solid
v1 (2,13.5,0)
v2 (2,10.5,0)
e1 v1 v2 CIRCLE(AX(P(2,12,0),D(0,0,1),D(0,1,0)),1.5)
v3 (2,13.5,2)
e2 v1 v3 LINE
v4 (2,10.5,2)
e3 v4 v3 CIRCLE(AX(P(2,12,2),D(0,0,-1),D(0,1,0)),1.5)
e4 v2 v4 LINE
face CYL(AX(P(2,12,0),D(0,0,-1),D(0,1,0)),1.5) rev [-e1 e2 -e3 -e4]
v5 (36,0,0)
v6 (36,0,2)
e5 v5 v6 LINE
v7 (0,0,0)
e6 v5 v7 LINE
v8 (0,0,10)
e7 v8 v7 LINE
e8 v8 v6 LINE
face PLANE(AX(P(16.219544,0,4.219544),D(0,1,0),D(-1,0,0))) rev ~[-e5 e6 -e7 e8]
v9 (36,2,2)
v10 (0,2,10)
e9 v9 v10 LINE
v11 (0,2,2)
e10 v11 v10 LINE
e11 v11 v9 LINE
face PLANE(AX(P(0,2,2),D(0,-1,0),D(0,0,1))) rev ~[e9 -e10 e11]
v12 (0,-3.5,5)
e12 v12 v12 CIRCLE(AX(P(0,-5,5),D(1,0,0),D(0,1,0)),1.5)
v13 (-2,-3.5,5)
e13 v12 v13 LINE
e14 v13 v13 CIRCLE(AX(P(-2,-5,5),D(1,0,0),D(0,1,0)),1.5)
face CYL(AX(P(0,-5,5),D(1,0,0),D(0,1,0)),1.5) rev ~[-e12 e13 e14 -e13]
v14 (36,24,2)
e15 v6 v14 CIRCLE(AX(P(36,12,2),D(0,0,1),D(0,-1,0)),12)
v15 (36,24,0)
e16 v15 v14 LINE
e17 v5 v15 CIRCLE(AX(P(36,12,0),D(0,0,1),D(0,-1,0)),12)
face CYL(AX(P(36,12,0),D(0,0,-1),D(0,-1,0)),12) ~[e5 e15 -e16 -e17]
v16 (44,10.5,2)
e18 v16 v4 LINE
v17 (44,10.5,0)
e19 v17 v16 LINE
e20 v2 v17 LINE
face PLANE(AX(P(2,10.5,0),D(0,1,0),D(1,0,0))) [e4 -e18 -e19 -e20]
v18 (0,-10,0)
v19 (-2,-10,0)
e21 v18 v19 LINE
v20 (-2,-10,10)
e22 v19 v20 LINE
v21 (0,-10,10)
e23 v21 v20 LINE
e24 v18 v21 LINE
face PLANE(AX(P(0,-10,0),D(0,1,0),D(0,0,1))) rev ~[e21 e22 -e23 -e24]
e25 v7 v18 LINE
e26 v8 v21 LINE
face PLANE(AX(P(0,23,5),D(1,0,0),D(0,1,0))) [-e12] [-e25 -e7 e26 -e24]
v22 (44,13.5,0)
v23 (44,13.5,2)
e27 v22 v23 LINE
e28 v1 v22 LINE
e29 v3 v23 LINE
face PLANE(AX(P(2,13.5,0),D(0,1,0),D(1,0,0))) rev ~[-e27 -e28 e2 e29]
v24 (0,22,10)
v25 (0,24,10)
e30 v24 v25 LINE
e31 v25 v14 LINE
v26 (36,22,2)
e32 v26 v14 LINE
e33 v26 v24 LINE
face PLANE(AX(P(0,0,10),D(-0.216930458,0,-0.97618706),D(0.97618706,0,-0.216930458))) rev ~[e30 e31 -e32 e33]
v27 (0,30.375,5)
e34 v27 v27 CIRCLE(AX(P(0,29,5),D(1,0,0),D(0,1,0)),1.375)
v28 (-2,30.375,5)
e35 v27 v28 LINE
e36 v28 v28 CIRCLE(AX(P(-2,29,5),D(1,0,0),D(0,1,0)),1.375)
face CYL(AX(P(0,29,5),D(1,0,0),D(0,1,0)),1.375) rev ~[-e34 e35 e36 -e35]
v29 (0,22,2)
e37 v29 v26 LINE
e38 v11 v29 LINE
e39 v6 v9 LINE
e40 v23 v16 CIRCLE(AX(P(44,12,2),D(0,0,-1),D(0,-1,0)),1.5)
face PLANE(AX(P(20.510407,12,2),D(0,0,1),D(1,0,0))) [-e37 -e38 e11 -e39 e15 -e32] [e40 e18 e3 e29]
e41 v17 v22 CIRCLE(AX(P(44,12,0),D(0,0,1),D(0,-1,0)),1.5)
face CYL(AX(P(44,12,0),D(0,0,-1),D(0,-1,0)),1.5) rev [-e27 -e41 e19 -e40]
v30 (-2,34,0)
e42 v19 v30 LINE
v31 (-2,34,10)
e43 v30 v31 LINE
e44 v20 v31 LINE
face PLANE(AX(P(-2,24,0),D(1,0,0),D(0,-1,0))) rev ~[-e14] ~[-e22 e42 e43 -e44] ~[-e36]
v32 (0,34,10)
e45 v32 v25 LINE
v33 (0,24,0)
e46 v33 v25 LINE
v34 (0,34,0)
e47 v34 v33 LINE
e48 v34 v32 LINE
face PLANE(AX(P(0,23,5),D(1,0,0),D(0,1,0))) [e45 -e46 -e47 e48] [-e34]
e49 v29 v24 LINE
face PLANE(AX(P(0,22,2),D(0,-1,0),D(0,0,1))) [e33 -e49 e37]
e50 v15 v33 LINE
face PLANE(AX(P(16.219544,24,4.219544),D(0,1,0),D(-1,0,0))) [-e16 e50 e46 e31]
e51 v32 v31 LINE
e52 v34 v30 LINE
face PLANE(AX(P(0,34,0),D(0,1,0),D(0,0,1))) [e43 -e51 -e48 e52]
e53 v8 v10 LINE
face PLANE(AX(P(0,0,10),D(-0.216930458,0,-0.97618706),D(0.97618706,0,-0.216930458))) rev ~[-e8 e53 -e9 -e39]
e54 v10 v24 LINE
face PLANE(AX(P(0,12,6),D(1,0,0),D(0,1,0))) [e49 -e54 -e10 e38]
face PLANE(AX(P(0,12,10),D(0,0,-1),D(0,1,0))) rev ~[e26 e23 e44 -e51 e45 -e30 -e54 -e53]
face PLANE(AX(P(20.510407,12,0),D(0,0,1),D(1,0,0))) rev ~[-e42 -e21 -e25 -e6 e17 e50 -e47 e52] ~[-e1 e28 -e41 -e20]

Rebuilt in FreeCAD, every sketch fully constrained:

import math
import FreeCAD as App
import Part
import Sketcher
from FreeCAD import Vector

doc = App.newDocument("Part")
params = doc.addObject("Spreadsheet::Sheet", "Params")
for row, (alias, value) in enumerate([
    ("sketch1_width", "22 mm"),
    ("sketch1_height", "10 mm"),
    ("pad1_length", "2 mm"),
    ("sketch2_diameter", "3 mm"),
    ("sketch3_width", "22 mm"),
    ("sketch3_height", "10 mm"),
    ("pad2_length", "2 mm"),
    ("sketch4_diameter", "2.75 mm"),
    ("sketch5_radius", "12 mm"),
    ("sketch5_width", "38 mm"),
    ("pad3_length", "2 mm"),
    ("sketch6_radius", "1.5 mm"),
    ("sketch6_width", "42 mm"),
    ("sketch7_width", "36 mm"),
    ("sketch7_height", "8 mm"),
    ("pad4_length", "24 mm"),
    ("sketch8_width", "20 mm"),
    ("sketch8_height", "8 mm"),
], start=1):
    params.set(f"A{row}", alias)
    params.set(f"B{row}", "=" + value)
    params.setAlias(f"B{row}", alias)

body = doc.addObject("PartDesign::Body", "Body")

# Sketch on YZ plane
sketch1 = body.newObject("Sketcher::SketchObject", "Sketch")
sketch1.AttachmentSupport = (doc.getObject("YZ_Plane"), [""])
sketch1.MapMode = "FlatFace"
sketch1.addGeometry(Part.LineSegment(Vector(-10, 10, 0), Vector(-10, 0, 0)), False)
sketch1.addGeometry(Part.LineSegment(Vector(-10, 0, 0), Vector(12, 0, 0)), False)
sketch1.addGeometry(Part.LineSegment(Vector(12, 0, 0), Vector(12, 10, 0)), False)
sketch1.addGeometry(Part.LineSegment(Vector(12, 10, 0), Vector(-10, 10, 0)), False)
sketch1.addConstraint(Sketcher.Constraint("Coincident", 0, 2, 1, 1))
sketch1.addConstraint(Sketcher.Constraint("Coincident", 1, 2, 2, 1))
sketch1.addConstraint(Sketcher.Constraint("Coincident", 2, 2, 3, 1))
sketch1.addConstraint(Sketcher.Constraint("Coincident", 3, 2, 0, 1))
sketch1.addConstraint(Sketcher.Constraint("Vertical", 0))
sketch1.addConstraint(Sketcher.Constraint("Horizontal", 1))
sketch1.addConstraint(Sketcher.Constraint("Vertical", 2))
sketch1.addConstraint(Sketcher.Constraint("Horizontal", 3))
sketch1.addConstraint(Sketcher.Constraint("PointOnObject", 0, 2, -1))
sketch1.addConstraint(Sketcher.Constraint("DistanceX", 1, 1, 1, 2, 22.0))
sketch1.addConstraint(Sketcher.Constraint("DistanceY", 0, 2, 0, 1, 10.0))
sketch1.addConstraint(Sketcher.Constraint("DistanceX", 0, 2, -1, 1, 10.0))
sketch1.setExpression("Constraints[9]", "Params.sketch1_width")
sketch1.setExpression("Constraints[10]", "Params.sketch1_height")
pad1 = body.newObject("PartDesign::Pad", "Pad")
pad1.Profile = sketch1
pad1.setExpression("Length", "Params.pad1_length")
pad1.Reversed = True

# Sketch on YZ plane
sketch2 = body.newObject("Sketcher::SketchObject", "Sketch001")
sketch2.AttachmentSupport = (doc.getObject("YZ_Plane"), [""])
sketch2.MapMode = "FlatFace"
sketch2.addGeometry(Part.Circle(Vector(-5, 5, 0), Vector(0, 0, 1), 1.5), False)
sketch2.addConstraint(Sketcher.Constraint("Diameter", 0, 3.0))
sketch2.addConstraint(Sketcher.Constraint("DistanceX", 0, 3, -1, 1, 5.0))
sketch2.addConstraint(Sketcher.Constraint("DistanceY", -1, 1, 0, 3, 5.0))
sketch2.setExpression("Constraints[0]", "Params.sketch2_diameter")
pocket1 = body.newObject("PartDesign::Pocket", "Pocket")
pocket1.Profile = sketch2
pocket1.Type = "ThroughAll"
pocket1.Midplane = True

# Sketch on YZ plane
sketch3 = body.newObject("Sketcher::SketchObject", "Sketch002")
sketch3.AttachmentSupport = (doc.getObject("YZ_Plane"), [""])
sketch3.MapMode = "FlatFace"
sketch3.addGeometry(Part.LineSegment(Vector(12, 10, 0), Vector(12, 0, 0)), False)
sketch3.addGeometry(Part.LineSegment(Vector(12, 0, 0), Vector(34, 0, 0)), False)
sketch3.addGeometry(Part.LineSegment(Vector(34, 0, 0), Vector(34, 10, 0)), False)
sketch3.addGeometry(Part.LineSegment(Vector(34, 10, 0), Vector(12, 10, 0)), False)
sketch3.addConstraint(Sketcher.Constraint("Coincident", 0, 2, 1, 1))
sketch3.addConstraint(Sketcher.Constraint("Coincident", 1, 2, 2, 1))
sketch3.addConstraint(Sketcher.Constraint("Coincident", 2, 2, 3, 1))
sketch3.addConstraint(Sketcher.Constraint("Coincident", 3, 2, 0, 1))
sketch3.addConstraint(Sketcher.Constraint("Vertical", 0))
sketch3.addConstraint(Sketcher.Constraint("Horizontal", 1))
sketch3.addConstraint(Sketcher.Constraint("Vertical", 2))
sketch3.addConstraint(Sketcher.Constraint("Horizontal", 3))
sketch3.addConstraint(Sketcher.Constraint("PointOnObject", 0, 2, -1))
sketch3.addConstraint(Sketcher.Constraint("DistanceX", 1, 1, 1, 2, 22.0))
sketch3.addConstraint(Sketcher.Constraint("DistanceY", 0, 2, 0, 1, 10.0))
sketch3.addConstraint(Sketcher.Constraint("DistanceX", -1, 1, 0, 2, 12.0))
sketch3.setExpression("Constraints[9]", "Params.sketch3_width")
sketch3.setExpression("Constraints[10]", "Params.sketch3_height")
pad2 = body.newObject("PartDesign::Pad", "Pad001")
pad2.Profile = sketch3
pad2.setExpression("Length", "Params.pad2_length")
pad2.Reversed = True

# Sketch on YZ plane
sketch4 = body.newObject("Sketcher::SketchObject", "Sketch003")
sketch4.AttachmentSupport = (doc.getObject("YZ_Plane"), [""])
sketch4.MapMode = "FlatFace"
sketch4.addGeometry(Part.Circle(Vector(29, 5, 0), Vector(0, 0, 1), 1.4), False)
sketch4.addConstraint(Sketcher.Constraint("Diameter", 0, 2.75))
sketch4.addConstraint(Sketcher.Constraint("DistanceX", -1, 1, 0, 3, 29.0))
sketch4.addConstraint(Sketcher.Constraint("DistanceY", -1, 1, 0, 3, 5.0))
sketch4.setExpression("Constraints[0]", "Params.sketch4_diameter")
pocket2 = body.newObject("PartDesign::Pocket", "Pocket001")
pocket2.Profile = sketch4
pocket2.Type = "ThroughAll"

# Sketch on XY plane
sketch5 = body.newObject("Sketcher::SketchObject", "Sketch004")
sketch5.AttachmentSupport = (doc.getObject("XY_Plane"), [""])
sketch5.MapMode = "FlatFace"
sketch5.addGeometry(Part.ArcOfCircle(Part.Circle(Vector(36, 12, 0), Vector(0, 0, 1), 12), math.radians(-90), math.radians(90)), False)
sketch5.addGeometry(Part.LineSegment(Vector(36, 24, 0), Vector(-2, 24, 0)), False)
sketch5.addGeometry(Part.LineSegment(Vector(-2, 24, 0), Vector(-2, 0, 0)), False)
sketch5.addGeometry(Part.LineSegment(Vector(-2, 0, 0), Vector(36, 0, 0)), False)
sketch5.addConstraint(Sketcher.Constraint("Tangent", 0, 2, 1, 1))
sketch5.addConstraint(Sketcher.Constraint("Coincident", 1, 2, 2, 1))
sketch5.addConstraint(Sketcher.Constraint("Coincident", 2, 2, 3, 1))
sketch5.addConstraint(Sketcher.Constraint("Tangent", 3, 2, 0, 1))
sketch5.addConstraint(Sketcher.Constraint("Horizontal", 1))
sketch5.addConstraint(Sketcher.Constraint("Vertical", 2))
sketch5.addConstraint(Sketcher.Constraint("Horizontal", 3))
sketch5.addConstraint(Sketcher.Constraint("PointOnObject", 2, 2, -1))
sketch5.addConstraint(Sketcher.Constraint("Radius", 0, 12.0))
sketch5.addConstraint(Sketcher.Constraint("DistanceX", 1, 2, 1, 1, 38.0))
sketch5.addConstraint(Sketcher.Constraint("DistanceX", -1, 1, 0, 3, 36.0))
sketch5.setExpression("Constraints[8]", "Params.sketch5_radius")
sketch5.setExpression("Constraints[9]", "Params.sketch5_width")
pad3 = body.newObject("PartDesign::Pad", "Pad002")
pad3.Profile = sketch5
pad3.setExpression("Length", "Params.pad3_length")

# Sketch on XY plane
sketch6 = body.newObject("Sketcher::SketchObject", "Sketch005")
sketch6.AttachmentSupport = (doc.getObject("XY_Plane"), [""])
sketch6.MapMode = "FlatFace"
sketch6.addGeometry(Part.ArcOfCircle(Part.Circle(Vector(2, 12, 0), Vector(0, 0, 1), 1.5), math.radians(90), math.radians(270)), False)
sketch6.addGeometry(Part.LineSegment(Vector(2, 10.5, 0), Vector(44, 10.5, 0)), False)
sketch6.addGeometry(Part.ArcOfCircle(Part.Circle(Vector(44, 12, 0), Vector(0, 0, 1), 1.5), math.radians(-90), math.radians(90)), False)
sketch6.addGeometry(Part.LineSegment(Vector(44, 13.5, 0), Vector(2, 13.5, 0)), False)
sketch6.addConstraint(Sketcher.Constraint("Tangent", 0, 2, 1, 1))
sketch6.addConstraint(Sketcher.Constraint("Tangent", 1, 2, 2, 1))
sketch6.addConstraint(Sketcher.Constraint("Tangent", 2, 2, 3, 1))
sketch6.addConstraint(Sketcher.Constraint("Tangent", 3, 2, 0, 1))
sketch6.addConstraint(Sketcher.Constraint("Horizontal", 1))
sketch6.addConstraint(Sketcher.Constraint("Horizontal", 3))
sketch6.addConstraint(Sketcher.Constraint("Radius", 0, 1.5))
sketch6.addConstraint(Sketcher.Constraint("DistanceX", 1, 1, 1, 2, 42.0))
sketch6.addConstraint(Sketcher.Constraint("DistanceX", -1, 1, 0, 3, 2.0))
sketch6.addConstraint(Sketcher.Constraint("DistanceY", -1, 1, 0, 3, 12.0))
sketch6.setExpression("Constraints[6]", "Params.sketch6_radius")
sketch6.setExpression("Constraints[7]", "Params.sketch6_width")
pocket3 = body.newObject("PartDesign::Pocket", "Pocket002")
pocket3.Profile = sketch6
pocket3.Type = "ThroughAll"
pocket3.Reversed = True

# Sketch on XZ plane
sketch7 = body.newObject("Sketcher::SketchObject", "Sketch006")
sketch7.AttachmentSupport = (doc.getObject("XZ_Plane"), [""])
sketch7.MapMode = "FlatFace"
sketch7.addGeometry(Part.LineSegment(Vector(36, 2, 0), Vector(0, 10, 0)), False)
sketch7.addGeometry(Part.LineSegment(Vector(0, 10, 0), Vector(0, 2, 0)), False)
sketch7.addGeometry(Part.LineSegment(Vector(0, 2, 0), Vector(36, 2, 0)), False)
sketch7.addConstraint(Sketcher.Constraint("Coincident", 0, 2, 1, 1))
sketch7.addConstraint(Sketcher.Constraint("Coincident", 1, 2, 2, 1))
sketch7.addConstraint(Sketcher.Constraint("Coincident", 2, 2, 0, 1))
sketch7.addConstraint(Sketcher.Constraint("Vertical", 1))
sketch7.addConstraint(Sketcher.Constraint("Horizontal", 2))
sketch7.addConstraint(Sketcher.Constraint("PointOnObject", 0, 2, -2))
sketch7.addConstraint(Sketcher.Constraint("DistanceX", 2, 1, 2, 2, 36.0))
sketch7.addConstraint(Sketcher.Constraint("DistanceY", 1, 2, 1, 1, 8.0))
sketch7.addConstraint(Sketcher.Constraint("DistanceY", -1, 1, 0, 2, 10.0))
sketch7.setExpression("Constraints[6]", "Params.sketch7_width")
sketch7.setExpression("Constraints[7]", "Params.sketch7_height")
pad4 = body.newObject("PartDesign::Pad", "Pad003")
pad4.Profile = sketch7
pad4.setExpression("Length", "Params.pad4_length")
pad4.Reversed = True

# Sketch on YZ plane
sketch8 = body.newObject("Sketcher::SketchObject", "Sketch007")
sketch8.AttachmentSupport = (doc.getObject("YZ_Plane"), [""])
sketch8.MapMode = "FlatFace"
sketch8.addGeometry(Part.LineSegment(Vector(2, 10, 0), Vector(2, 2, 0)), False)
sketch8.addGeometry(Part.LineSegment(Vector(2, 2, 0), Vector(22, 2, 0)), False)
sketch8.addGeometry(Part.LineSegment(Vector(22, 2, 0), Vector(22, 10, 0)), False)
sketch8.addGeometry(Part.LineSegment(Vector(22, 10, 0), Vector(2, 10, 0)), False)
sketch8.addConstraint(Sketcher.Constraint("Coincident", 0, 2, 1, 1))
sketch8.addConstraint(Sketcher.Constraint("Coincident", 1, 2, 2, 1))
sketch8.addConstraint(Sketcher.Constraint("Coincident", 2, 2, 3, 1))
sketch8.addConstraint(Sketcher.Constraint("Coincident", 3, 2, 0, 1))
sketch8.addConstraint(Sketcher.Constraint("Vertical", 0))
sketch8.addConstraint(Sketcher.Constraint("Horizontal", 1))
sketch8.addConstraint(Sketcher.Constraint("Vertical", 2))
sketch8.addConstraint(Sketcher.Constraint("Horizontal", 3))
sketch8.addConstraint(Sketcher.Constraint("DistanceX", 1, 1, 1, 2, 20.0))
sketch8.addConstraint(Sketcher.Constraint("DistanceY", 0, 2, 0, 1, 8.0))
sketch8.addConstraint(Sketcher.Constraint("DistanceX", -1, 1, 0, 2, 2.0))
sketch8.addConstraint(Sketcher.Constraint("DistanceY", -1, 1, 0, 2, 2.0))
sketch8.setExpression("Constraints[8]", "Params.sketch8_width")
sketch8.setExpression("Constraints[9]", "Params.sketch8_height")
pocket4 = body.newObject("PartDesign::Pocket", "Pocket003")
pocket4.Profile = sketch8
pocket4.Type = "ThroughAll"
pocket4.Reversed = True

doc.recompute()
